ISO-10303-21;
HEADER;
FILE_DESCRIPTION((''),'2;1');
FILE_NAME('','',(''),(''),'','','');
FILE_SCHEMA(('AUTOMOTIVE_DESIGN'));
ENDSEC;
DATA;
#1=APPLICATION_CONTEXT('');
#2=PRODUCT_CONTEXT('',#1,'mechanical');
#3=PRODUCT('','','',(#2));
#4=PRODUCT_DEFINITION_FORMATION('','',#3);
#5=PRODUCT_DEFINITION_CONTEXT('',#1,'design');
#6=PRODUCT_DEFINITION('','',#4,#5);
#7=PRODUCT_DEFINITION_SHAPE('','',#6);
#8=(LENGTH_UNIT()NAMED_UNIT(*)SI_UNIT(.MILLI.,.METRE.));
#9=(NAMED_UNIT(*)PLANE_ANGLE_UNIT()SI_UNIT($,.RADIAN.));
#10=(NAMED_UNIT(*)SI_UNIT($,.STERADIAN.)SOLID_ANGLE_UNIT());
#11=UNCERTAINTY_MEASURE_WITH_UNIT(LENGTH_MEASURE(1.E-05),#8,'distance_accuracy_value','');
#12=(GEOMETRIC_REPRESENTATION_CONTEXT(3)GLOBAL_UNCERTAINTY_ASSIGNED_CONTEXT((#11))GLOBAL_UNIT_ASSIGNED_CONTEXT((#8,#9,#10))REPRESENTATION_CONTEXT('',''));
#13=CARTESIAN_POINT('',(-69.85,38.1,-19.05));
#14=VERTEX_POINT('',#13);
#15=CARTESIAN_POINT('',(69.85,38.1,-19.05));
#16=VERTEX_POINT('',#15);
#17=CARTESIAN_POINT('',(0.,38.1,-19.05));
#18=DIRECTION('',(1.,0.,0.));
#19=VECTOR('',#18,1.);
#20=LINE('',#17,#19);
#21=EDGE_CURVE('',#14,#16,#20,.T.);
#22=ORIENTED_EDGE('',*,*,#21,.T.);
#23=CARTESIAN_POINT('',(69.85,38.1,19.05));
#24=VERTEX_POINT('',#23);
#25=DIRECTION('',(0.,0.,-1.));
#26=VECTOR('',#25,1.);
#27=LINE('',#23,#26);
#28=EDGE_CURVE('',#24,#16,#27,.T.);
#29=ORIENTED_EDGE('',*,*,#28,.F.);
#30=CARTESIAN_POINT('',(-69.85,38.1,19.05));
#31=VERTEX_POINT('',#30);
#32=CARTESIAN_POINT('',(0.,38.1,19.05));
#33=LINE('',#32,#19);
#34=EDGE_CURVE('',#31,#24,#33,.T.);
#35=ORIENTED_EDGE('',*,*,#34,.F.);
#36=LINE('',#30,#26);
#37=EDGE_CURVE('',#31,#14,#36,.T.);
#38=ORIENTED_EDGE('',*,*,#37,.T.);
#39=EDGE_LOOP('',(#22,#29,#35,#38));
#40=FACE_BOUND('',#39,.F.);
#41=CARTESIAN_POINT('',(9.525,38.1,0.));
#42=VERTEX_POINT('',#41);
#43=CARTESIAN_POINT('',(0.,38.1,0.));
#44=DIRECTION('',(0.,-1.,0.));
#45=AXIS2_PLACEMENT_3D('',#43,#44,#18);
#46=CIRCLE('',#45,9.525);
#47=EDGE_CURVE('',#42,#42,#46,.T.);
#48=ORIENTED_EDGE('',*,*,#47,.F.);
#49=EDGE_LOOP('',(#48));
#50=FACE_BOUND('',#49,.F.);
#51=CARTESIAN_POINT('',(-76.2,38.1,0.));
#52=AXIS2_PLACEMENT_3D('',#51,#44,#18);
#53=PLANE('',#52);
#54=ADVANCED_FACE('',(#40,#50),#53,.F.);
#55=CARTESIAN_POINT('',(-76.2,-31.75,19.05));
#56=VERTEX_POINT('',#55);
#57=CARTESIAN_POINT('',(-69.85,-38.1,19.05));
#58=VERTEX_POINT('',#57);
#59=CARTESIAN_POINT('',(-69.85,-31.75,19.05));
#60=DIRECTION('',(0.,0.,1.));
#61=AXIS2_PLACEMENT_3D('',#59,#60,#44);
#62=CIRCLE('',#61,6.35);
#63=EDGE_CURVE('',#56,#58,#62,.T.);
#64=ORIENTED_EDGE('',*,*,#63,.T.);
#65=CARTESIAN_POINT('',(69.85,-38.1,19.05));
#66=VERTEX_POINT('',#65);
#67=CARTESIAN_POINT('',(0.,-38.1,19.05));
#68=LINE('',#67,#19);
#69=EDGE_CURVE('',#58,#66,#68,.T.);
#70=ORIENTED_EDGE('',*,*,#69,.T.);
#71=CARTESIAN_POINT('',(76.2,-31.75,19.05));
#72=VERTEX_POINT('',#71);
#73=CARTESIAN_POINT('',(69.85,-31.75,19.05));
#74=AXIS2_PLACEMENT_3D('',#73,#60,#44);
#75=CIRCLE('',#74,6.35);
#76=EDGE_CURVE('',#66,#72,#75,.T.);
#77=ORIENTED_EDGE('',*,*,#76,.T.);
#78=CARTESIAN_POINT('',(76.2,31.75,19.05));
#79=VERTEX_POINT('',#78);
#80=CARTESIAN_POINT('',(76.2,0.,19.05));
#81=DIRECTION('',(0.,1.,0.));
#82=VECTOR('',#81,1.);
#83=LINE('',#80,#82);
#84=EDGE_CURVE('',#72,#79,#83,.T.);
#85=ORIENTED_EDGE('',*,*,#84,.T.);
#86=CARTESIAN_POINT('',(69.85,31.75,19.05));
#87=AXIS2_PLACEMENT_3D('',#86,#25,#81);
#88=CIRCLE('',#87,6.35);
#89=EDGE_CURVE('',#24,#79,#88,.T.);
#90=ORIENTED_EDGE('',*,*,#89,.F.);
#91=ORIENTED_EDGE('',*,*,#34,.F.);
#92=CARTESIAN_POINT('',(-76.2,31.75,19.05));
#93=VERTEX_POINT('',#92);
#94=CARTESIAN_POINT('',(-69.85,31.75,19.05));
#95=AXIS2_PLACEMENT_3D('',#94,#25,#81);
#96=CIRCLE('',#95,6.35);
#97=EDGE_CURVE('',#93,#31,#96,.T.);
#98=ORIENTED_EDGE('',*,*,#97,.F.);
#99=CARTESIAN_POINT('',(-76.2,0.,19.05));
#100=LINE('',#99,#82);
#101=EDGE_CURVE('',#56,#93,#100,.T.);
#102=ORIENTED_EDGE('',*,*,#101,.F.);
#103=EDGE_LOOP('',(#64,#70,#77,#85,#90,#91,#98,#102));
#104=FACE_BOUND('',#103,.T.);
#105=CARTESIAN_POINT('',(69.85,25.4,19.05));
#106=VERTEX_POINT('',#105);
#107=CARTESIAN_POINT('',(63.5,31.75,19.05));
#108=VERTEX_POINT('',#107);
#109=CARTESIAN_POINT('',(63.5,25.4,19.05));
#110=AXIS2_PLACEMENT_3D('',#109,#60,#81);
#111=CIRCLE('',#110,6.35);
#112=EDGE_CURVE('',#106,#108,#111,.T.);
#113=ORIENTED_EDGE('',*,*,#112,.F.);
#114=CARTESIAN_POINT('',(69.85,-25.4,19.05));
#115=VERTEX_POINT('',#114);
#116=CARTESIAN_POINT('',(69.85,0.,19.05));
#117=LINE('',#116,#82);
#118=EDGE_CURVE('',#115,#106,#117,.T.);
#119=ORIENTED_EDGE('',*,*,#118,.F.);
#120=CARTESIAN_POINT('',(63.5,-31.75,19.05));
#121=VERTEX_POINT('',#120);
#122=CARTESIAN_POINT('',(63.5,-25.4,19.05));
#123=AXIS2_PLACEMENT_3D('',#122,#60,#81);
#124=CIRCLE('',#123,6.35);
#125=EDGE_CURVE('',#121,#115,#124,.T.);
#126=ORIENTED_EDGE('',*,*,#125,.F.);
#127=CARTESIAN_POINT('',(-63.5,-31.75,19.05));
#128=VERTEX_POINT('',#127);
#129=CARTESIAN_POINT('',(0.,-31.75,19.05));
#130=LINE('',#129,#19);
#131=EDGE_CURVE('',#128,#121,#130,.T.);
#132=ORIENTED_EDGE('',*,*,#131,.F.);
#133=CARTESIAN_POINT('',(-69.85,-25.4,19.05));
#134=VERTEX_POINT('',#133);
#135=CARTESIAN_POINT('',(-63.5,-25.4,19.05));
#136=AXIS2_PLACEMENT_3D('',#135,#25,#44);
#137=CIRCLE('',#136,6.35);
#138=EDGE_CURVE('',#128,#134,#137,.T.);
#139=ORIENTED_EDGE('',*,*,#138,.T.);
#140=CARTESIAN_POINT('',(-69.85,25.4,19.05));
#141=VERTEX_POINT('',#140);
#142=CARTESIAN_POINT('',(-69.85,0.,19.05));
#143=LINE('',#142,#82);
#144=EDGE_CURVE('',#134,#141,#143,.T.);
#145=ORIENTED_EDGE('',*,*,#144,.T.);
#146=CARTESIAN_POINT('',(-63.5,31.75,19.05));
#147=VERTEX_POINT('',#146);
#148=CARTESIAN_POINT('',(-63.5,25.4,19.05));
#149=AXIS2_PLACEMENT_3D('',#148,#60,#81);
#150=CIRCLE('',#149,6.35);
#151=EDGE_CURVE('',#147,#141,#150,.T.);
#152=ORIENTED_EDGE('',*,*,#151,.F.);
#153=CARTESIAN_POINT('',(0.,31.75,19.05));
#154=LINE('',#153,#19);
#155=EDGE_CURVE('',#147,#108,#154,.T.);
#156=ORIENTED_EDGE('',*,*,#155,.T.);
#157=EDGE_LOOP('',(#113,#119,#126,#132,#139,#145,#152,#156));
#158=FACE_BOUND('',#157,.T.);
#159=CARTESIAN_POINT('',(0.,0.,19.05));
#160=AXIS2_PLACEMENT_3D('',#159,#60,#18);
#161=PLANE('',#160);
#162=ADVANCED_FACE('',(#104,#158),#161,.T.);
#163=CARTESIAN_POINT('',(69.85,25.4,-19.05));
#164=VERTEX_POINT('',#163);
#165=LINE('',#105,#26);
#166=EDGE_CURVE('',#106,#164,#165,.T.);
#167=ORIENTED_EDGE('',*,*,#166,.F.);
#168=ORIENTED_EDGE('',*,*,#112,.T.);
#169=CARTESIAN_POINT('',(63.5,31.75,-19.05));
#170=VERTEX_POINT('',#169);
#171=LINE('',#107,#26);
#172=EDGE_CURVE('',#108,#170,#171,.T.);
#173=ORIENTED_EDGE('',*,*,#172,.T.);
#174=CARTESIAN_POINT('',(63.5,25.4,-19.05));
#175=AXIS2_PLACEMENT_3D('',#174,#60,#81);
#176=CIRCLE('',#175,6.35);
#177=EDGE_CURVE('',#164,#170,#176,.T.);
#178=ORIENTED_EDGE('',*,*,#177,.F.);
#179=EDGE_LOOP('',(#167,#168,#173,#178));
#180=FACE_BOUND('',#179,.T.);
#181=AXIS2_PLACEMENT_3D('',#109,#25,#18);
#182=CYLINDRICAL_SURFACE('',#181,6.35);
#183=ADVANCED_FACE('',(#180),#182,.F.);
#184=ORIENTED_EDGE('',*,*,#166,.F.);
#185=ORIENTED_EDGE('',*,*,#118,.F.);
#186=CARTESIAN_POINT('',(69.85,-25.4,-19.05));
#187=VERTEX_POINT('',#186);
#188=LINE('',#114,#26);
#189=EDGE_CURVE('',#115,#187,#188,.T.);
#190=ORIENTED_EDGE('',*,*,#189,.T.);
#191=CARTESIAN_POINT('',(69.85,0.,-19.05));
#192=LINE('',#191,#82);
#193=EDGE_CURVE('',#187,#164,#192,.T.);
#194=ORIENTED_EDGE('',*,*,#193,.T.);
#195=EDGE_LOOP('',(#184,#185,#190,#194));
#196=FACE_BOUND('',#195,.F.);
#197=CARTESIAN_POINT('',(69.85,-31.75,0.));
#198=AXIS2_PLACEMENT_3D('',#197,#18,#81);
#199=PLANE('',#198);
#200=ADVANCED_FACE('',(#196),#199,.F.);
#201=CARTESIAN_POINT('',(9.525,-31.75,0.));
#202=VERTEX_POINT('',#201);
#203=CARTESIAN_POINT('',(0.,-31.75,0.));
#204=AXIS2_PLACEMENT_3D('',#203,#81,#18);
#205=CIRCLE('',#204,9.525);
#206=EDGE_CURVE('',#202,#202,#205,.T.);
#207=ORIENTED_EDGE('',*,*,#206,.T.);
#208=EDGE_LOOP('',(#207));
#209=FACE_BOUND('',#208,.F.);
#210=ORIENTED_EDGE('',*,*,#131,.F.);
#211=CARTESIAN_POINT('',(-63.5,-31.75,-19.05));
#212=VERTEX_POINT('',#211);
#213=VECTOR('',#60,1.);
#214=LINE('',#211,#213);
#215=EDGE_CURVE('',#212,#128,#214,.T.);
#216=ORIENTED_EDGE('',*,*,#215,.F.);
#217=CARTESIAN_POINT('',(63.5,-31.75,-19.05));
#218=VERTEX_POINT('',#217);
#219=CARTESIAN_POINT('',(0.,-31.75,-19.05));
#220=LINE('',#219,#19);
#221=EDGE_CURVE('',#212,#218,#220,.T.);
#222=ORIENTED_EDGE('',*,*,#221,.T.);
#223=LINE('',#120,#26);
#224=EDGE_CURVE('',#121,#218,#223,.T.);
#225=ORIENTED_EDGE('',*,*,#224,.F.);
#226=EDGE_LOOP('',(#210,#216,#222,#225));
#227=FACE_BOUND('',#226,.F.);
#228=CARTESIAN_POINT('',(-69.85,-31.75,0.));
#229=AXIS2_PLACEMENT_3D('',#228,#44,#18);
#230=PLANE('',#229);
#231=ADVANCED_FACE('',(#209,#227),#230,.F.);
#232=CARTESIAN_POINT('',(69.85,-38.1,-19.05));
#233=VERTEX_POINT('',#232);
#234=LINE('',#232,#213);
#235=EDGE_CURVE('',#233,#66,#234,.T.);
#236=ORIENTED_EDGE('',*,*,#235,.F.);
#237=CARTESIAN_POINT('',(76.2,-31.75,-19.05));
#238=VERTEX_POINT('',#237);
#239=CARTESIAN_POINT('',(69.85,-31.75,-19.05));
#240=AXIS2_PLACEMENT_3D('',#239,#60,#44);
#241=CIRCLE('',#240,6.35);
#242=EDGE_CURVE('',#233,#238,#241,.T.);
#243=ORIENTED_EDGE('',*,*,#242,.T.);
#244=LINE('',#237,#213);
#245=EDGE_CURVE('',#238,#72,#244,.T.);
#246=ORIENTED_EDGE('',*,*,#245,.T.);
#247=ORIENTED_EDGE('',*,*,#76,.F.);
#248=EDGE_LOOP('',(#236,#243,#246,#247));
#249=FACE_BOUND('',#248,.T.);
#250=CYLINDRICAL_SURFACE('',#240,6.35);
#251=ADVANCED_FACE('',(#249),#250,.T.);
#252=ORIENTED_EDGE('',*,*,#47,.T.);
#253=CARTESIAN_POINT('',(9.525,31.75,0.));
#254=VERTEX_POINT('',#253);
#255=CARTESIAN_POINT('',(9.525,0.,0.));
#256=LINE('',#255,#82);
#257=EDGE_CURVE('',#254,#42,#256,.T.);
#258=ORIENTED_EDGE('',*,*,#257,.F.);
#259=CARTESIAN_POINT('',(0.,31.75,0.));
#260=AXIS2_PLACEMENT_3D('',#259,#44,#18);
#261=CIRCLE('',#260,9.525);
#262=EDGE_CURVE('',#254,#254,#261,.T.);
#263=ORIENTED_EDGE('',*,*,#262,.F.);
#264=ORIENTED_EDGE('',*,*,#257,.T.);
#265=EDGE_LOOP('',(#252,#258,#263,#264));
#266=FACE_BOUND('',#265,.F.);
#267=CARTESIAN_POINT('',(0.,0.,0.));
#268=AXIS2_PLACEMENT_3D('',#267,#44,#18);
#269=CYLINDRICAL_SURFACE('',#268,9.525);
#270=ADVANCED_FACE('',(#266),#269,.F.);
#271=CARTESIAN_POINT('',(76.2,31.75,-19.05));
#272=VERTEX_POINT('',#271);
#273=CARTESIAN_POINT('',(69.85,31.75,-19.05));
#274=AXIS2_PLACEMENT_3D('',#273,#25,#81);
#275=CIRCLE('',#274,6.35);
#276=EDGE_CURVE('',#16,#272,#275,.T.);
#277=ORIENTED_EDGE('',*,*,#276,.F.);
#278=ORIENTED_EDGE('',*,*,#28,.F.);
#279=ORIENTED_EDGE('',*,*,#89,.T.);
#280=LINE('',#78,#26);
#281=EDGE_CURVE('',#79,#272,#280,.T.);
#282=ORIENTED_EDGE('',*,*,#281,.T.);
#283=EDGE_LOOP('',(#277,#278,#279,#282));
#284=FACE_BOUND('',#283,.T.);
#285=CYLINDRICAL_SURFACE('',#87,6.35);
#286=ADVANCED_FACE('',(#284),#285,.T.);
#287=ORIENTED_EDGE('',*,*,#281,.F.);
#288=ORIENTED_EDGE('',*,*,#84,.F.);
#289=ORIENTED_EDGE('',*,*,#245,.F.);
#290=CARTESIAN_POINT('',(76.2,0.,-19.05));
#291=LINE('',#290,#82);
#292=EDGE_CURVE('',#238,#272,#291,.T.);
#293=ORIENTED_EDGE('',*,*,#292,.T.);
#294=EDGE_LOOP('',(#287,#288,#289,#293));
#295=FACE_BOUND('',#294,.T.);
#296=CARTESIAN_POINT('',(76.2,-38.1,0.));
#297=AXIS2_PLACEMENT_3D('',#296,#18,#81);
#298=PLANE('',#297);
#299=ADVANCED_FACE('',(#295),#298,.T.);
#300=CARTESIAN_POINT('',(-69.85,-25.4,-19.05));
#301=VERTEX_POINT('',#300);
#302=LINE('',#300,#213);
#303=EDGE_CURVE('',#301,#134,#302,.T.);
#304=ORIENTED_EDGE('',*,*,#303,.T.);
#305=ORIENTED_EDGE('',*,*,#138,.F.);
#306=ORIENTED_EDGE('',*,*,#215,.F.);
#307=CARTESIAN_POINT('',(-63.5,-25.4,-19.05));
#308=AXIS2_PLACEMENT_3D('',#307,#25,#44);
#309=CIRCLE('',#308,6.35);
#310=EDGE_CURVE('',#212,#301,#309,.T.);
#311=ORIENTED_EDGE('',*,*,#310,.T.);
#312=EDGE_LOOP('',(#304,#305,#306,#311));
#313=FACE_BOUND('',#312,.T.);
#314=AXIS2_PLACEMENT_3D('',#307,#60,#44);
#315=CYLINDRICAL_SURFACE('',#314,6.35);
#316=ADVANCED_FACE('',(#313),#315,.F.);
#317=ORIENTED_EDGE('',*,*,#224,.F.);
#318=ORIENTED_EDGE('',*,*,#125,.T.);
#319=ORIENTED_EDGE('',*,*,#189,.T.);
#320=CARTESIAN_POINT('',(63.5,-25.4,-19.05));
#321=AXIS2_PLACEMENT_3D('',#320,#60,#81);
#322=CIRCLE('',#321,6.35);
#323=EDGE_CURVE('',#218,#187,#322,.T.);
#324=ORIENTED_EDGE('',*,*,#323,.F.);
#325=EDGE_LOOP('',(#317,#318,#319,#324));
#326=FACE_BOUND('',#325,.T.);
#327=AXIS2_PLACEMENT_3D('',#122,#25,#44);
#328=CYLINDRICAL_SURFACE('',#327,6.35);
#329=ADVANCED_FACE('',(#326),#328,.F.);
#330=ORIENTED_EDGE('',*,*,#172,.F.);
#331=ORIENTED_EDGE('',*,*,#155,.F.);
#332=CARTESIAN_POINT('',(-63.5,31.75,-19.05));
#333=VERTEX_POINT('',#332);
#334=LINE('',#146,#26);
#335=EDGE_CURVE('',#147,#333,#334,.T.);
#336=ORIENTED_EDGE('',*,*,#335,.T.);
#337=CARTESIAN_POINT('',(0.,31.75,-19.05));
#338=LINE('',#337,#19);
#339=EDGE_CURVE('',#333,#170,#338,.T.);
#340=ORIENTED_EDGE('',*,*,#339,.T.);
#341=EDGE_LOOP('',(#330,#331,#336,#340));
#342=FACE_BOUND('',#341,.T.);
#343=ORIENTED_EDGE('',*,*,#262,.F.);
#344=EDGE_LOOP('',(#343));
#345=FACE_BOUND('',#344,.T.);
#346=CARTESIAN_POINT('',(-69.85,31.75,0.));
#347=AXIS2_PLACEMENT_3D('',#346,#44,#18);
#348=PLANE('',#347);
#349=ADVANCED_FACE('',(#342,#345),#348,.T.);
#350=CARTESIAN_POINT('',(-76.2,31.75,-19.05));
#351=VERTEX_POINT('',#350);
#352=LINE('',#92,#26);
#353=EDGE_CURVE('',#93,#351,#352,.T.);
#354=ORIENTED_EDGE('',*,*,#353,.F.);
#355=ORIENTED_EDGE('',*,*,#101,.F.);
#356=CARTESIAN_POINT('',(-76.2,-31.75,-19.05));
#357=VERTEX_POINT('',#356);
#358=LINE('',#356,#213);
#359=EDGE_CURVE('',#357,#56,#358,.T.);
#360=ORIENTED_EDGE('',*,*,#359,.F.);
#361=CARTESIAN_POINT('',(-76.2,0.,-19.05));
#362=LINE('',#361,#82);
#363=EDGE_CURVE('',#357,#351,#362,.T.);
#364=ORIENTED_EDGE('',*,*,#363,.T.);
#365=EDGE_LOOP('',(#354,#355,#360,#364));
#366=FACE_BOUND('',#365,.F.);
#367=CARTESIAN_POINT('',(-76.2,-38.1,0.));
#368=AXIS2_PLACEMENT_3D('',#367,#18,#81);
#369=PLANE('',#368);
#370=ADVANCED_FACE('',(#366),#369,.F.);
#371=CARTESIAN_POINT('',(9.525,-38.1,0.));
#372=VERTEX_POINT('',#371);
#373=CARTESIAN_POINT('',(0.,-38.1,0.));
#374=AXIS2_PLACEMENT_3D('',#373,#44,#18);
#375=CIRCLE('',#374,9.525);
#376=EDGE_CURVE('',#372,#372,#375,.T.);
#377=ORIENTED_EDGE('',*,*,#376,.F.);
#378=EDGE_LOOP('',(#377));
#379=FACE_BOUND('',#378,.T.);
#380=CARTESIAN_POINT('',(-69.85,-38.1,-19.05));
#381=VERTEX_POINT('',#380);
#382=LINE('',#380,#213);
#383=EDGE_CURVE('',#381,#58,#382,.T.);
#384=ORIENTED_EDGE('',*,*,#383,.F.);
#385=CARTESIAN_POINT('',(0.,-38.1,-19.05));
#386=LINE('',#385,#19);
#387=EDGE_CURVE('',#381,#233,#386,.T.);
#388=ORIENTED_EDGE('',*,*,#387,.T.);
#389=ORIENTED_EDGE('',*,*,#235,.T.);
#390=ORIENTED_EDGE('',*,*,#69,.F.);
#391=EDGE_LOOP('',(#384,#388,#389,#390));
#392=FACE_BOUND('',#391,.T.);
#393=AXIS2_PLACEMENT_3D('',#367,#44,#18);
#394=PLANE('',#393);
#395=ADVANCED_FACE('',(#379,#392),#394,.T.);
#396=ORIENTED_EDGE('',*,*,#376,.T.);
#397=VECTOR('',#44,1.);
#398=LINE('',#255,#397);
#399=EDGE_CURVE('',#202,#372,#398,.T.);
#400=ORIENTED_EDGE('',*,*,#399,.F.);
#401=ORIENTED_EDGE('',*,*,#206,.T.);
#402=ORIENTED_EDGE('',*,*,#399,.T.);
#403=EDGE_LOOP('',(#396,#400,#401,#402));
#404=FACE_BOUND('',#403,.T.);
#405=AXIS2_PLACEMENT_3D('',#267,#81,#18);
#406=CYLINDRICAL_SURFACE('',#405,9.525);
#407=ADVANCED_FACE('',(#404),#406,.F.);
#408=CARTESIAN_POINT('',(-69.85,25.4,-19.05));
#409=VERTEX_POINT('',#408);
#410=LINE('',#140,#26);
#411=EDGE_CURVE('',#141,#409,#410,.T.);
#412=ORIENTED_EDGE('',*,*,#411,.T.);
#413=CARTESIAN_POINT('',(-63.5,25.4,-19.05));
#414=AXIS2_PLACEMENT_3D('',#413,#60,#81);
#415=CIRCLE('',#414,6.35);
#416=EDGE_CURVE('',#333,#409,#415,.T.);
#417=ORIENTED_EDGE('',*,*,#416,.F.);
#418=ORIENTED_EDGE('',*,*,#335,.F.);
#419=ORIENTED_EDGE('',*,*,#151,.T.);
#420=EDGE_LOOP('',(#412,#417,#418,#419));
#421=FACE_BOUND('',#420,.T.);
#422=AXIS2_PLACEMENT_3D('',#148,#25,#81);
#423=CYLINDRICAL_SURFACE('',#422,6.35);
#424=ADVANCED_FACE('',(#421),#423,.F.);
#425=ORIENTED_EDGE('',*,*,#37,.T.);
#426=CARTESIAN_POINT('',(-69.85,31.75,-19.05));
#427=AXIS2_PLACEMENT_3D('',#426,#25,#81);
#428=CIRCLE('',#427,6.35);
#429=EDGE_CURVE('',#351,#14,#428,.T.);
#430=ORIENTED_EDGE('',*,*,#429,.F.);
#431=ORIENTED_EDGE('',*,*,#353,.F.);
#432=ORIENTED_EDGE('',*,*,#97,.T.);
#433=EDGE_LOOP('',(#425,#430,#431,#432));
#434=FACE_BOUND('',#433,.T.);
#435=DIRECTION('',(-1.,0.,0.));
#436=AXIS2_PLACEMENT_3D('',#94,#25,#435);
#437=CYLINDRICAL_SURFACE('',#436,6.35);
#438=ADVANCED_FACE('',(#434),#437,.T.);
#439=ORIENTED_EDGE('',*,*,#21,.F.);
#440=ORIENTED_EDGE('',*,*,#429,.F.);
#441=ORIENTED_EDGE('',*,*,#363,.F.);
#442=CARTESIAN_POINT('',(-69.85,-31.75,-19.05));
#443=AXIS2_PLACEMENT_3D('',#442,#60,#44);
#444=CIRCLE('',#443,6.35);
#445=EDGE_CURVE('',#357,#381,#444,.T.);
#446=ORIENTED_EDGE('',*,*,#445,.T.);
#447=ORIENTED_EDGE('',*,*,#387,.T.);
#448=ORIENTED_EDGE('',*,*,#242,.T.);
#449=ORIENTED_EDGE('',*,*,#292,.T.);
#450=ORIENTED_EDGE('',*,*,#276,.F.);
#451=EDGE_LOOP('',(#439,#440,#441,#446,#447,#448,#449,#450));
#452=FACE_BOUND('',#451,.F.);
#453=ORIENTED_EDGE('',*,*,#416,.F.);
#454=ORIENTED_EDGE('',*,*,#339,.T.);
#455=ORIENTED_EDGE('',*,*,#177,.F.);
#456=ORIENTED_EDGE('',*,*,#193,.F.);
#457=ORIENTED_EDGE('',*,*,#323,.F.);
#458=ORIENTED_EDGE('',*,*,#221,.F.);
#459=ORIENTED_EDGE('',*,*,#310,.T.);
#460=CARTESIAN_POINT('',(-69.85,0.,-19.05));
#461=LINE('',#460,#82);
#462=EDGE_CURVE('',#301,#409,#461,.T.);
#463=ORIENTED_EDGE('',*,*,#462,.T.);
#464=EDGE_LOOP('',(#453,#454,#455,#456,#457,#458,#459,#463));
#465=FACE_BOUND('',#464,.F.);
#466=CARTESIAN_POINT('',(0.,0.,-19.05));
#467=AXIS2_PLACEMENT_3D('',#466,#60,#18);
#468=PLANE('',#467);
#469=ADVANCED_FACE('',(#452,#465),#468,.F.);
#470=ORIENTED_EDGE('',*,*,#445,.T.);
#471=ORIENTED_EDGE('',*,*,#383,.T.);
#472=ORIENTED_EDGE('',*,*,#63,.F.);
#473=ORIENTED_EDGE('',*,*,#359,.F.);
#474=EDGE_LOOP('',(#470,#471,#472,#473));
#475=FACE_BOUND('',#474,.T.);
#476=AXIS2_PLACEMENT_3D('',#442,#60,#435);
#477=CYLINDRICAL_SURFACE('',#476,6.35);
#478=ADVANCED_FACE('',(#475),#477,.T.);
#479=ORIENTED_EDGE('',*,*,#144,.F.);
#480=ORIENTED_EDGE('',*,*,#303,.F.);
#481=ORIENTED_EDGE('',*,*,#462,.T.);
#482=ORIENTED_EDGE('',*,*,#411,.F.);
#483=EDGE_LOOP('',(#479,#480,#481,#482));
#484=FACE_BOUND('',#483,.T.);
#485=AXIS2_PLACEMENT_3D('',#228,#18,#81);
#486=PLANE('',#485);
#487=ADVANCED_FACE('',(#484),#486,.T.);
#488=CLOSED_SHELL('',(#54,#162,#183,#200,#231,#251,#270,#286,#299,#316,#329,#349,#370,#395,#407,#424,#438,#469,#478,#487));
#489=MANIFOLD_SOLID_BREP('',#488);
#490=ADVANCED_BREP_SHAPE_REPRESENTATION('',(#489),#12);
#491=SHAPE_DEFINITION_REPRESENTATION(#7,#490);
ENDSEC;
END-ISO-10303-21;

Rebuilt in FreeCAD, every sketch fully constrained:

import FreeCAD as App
import Part
import Sketcher
from FreeCAD import Vector
Q = App.Units.Quantity


def edges_at(feature, points):
    """Names of the edges that pass closest to the given points."""
    edges = feature.Shape.Edges
    near = lambda p: min(range(len(edges)), key=lambda i: edges[i].distToShape(Part.Vertex(*p))[0])
    return sorted({f"Edge{near(p) + 1}" for p in points})


def add_polygon(sketch, points):
    """Adds a closed chain of lines whose ends are joined by coincident constraints."""
    first, n = sketch.GeometryCount, len(points)
    for a, b in zip(points, points[1:] + points[:1]):
        sketch.addGeometry(Part.LineSegment(App.Vector(*a, 0), App.Vector(*b, 0)), False)
    for i in range(n):
        sketch.addConstraint(Sketcher.Constraint("Coincident", first + i, 2, first + (i + 1) % n, 1))

doc = App.newDocument("Part")
params = doc.addObject("Spreadsheet::Sheet", "Params")
for row, (alias, value) in enumerate([
    ("sketch1_width", "6 in"),
    ("sketch1_height", "3 in"),
    ("sketch1_width2", "5.5 in"),
    ("sketch1_height2", "2.5 in"),
    ("pad1_length", "1.5 in"),
    ("sketch2_diameter", "0.75 in"),
    ("fillet_radius", "0.25 in"),
], start=1):
    params.set(f"A{row}", alias)
    params.set(f"B{row}", "=" + value)
    params.setAlias(f"B{row}", alias)

body = doc.addObject("PartDesign::Body", "Body")

sketch1 = body.newObject("Sketcher::SketchObject", "Sketch")
sketch1.AttachmentSupport = (doc.getObject("XY_Plane"), [""])
sketch1.MapMode = "FlatFace"
add_polygon(sketch1, [(-76, 38), (-76, -38), (76, -38), (76, 38)])
add_polygon(sketch1, [(70, -32), (-70, -32), (-70, 32), (70, 32)])
sketch1.addConstraint(Sketcher.Constraint("Vertical", 0))
sketch1.addConstraint(Sketcher.Constraint("Horizontal", 1))
sketch1.addConstraint(Sketcher.Constraint("Vertical", 2))
sketch1.addConstraint(Sketcher.Constraint("Horizontal", 3))
sketch1.addConstraint(Sketcher.Constraint("Horizontal", 4))
sketch1.addConstraint(Sketcher.Constraint("Vertical", 5))
sketch1.addConstraint(Sketcher.Constraint("Horizontal", 6))
sketch1.addConstraint(Sketcher.Constraint("Vertical", 7))
sketch1.addConstraint(Sketcher.Constraint("Symmetric", 0, 2, 2, 2, -1, 1))
sketch1.addConstraint(Sketcher.Constraint("Symmetric", 4, 2, 6, 2, -1, 1))
sketch1.addConstraint(Sketcher.Constraint("DistanceX", 1, 1, 1, 2, Q("6 in")))
sketch1.addConstraint(Sketcher.Constraint("DistanceY", 0, 2, 0, 1, Q("3 in")))
sketch1.addConstraint(Sketcher.Constraint("DistanceX", 4, 2, 4, 1, Q("5.5 in")))
sketch1.addConstraint(Sketcher.Constraint("DistanceY", 5, 1, 5, 2, Q("2.5 in")))
sketch1.setExpression("Constraints[18]", "Params.sketch1_width")
sketch1.setExpression("Constraints[19]", "Params.sketch1_height")
sketch1.setExpression("Constraints[20]", "Params.sketch1_width2")
sketch1.setExpression("Constraints[21]", "Params.sketch1_height2")
pad1 = body.newObject("PartDesign::Pad", "Pad")
pad1.Profile = sketch1
pad1.setExpression("Length", "Params.pad1_length")
pad1.Midplane = True

sketch2 = body.newObject("Sketcher::SketchObject", "Sketch001")
sketch2.AttachmentSupport = (doc.getObject("XZ_Plane"), [""])
sketch2.MapMode = "FlatFace"
sketch2.addGeometry(Part.Circle(Vector(0, 0, 0), Vector(0, 0, 1), 10), False)
sketch2.addConstraint(Sketcher.Constraint("Coincident", 0, 3, -1, 1))
sketch2.addConstraint(Sketcher.Constraint("Diameter", 0, Q("0.75 in")))
sketch2.setExpression("Constraints[1]", "Params.sketch2_diameter")
pocket1 = body.newObject("PartDesign::Pocket", "Pocket")
pocket1.Profile = sketch2
pocket1.Type = "ThroughAll"
pocket1.Midplane = True
doc.recompute()

fillet = body.newObject("PartDesign::Fillet", "Fillet")
fillet.Base = (pocket1, edges_at(pocket1, [
    (-69.85, -31.75, 0),
    (-69.85, 31.75, 0),
    (69.85, 31.75, 0),
    (69.85, -31.75, 0),
    (-76.2, -38.1, 0),
    (76.2, -38.1, 0),
    (76.2, 38.1, 0),
    (-76.2, 38.1, 0),
]))
fillet.setExpression("Radius", "Params.fillet_radius")

doc.recompute()
